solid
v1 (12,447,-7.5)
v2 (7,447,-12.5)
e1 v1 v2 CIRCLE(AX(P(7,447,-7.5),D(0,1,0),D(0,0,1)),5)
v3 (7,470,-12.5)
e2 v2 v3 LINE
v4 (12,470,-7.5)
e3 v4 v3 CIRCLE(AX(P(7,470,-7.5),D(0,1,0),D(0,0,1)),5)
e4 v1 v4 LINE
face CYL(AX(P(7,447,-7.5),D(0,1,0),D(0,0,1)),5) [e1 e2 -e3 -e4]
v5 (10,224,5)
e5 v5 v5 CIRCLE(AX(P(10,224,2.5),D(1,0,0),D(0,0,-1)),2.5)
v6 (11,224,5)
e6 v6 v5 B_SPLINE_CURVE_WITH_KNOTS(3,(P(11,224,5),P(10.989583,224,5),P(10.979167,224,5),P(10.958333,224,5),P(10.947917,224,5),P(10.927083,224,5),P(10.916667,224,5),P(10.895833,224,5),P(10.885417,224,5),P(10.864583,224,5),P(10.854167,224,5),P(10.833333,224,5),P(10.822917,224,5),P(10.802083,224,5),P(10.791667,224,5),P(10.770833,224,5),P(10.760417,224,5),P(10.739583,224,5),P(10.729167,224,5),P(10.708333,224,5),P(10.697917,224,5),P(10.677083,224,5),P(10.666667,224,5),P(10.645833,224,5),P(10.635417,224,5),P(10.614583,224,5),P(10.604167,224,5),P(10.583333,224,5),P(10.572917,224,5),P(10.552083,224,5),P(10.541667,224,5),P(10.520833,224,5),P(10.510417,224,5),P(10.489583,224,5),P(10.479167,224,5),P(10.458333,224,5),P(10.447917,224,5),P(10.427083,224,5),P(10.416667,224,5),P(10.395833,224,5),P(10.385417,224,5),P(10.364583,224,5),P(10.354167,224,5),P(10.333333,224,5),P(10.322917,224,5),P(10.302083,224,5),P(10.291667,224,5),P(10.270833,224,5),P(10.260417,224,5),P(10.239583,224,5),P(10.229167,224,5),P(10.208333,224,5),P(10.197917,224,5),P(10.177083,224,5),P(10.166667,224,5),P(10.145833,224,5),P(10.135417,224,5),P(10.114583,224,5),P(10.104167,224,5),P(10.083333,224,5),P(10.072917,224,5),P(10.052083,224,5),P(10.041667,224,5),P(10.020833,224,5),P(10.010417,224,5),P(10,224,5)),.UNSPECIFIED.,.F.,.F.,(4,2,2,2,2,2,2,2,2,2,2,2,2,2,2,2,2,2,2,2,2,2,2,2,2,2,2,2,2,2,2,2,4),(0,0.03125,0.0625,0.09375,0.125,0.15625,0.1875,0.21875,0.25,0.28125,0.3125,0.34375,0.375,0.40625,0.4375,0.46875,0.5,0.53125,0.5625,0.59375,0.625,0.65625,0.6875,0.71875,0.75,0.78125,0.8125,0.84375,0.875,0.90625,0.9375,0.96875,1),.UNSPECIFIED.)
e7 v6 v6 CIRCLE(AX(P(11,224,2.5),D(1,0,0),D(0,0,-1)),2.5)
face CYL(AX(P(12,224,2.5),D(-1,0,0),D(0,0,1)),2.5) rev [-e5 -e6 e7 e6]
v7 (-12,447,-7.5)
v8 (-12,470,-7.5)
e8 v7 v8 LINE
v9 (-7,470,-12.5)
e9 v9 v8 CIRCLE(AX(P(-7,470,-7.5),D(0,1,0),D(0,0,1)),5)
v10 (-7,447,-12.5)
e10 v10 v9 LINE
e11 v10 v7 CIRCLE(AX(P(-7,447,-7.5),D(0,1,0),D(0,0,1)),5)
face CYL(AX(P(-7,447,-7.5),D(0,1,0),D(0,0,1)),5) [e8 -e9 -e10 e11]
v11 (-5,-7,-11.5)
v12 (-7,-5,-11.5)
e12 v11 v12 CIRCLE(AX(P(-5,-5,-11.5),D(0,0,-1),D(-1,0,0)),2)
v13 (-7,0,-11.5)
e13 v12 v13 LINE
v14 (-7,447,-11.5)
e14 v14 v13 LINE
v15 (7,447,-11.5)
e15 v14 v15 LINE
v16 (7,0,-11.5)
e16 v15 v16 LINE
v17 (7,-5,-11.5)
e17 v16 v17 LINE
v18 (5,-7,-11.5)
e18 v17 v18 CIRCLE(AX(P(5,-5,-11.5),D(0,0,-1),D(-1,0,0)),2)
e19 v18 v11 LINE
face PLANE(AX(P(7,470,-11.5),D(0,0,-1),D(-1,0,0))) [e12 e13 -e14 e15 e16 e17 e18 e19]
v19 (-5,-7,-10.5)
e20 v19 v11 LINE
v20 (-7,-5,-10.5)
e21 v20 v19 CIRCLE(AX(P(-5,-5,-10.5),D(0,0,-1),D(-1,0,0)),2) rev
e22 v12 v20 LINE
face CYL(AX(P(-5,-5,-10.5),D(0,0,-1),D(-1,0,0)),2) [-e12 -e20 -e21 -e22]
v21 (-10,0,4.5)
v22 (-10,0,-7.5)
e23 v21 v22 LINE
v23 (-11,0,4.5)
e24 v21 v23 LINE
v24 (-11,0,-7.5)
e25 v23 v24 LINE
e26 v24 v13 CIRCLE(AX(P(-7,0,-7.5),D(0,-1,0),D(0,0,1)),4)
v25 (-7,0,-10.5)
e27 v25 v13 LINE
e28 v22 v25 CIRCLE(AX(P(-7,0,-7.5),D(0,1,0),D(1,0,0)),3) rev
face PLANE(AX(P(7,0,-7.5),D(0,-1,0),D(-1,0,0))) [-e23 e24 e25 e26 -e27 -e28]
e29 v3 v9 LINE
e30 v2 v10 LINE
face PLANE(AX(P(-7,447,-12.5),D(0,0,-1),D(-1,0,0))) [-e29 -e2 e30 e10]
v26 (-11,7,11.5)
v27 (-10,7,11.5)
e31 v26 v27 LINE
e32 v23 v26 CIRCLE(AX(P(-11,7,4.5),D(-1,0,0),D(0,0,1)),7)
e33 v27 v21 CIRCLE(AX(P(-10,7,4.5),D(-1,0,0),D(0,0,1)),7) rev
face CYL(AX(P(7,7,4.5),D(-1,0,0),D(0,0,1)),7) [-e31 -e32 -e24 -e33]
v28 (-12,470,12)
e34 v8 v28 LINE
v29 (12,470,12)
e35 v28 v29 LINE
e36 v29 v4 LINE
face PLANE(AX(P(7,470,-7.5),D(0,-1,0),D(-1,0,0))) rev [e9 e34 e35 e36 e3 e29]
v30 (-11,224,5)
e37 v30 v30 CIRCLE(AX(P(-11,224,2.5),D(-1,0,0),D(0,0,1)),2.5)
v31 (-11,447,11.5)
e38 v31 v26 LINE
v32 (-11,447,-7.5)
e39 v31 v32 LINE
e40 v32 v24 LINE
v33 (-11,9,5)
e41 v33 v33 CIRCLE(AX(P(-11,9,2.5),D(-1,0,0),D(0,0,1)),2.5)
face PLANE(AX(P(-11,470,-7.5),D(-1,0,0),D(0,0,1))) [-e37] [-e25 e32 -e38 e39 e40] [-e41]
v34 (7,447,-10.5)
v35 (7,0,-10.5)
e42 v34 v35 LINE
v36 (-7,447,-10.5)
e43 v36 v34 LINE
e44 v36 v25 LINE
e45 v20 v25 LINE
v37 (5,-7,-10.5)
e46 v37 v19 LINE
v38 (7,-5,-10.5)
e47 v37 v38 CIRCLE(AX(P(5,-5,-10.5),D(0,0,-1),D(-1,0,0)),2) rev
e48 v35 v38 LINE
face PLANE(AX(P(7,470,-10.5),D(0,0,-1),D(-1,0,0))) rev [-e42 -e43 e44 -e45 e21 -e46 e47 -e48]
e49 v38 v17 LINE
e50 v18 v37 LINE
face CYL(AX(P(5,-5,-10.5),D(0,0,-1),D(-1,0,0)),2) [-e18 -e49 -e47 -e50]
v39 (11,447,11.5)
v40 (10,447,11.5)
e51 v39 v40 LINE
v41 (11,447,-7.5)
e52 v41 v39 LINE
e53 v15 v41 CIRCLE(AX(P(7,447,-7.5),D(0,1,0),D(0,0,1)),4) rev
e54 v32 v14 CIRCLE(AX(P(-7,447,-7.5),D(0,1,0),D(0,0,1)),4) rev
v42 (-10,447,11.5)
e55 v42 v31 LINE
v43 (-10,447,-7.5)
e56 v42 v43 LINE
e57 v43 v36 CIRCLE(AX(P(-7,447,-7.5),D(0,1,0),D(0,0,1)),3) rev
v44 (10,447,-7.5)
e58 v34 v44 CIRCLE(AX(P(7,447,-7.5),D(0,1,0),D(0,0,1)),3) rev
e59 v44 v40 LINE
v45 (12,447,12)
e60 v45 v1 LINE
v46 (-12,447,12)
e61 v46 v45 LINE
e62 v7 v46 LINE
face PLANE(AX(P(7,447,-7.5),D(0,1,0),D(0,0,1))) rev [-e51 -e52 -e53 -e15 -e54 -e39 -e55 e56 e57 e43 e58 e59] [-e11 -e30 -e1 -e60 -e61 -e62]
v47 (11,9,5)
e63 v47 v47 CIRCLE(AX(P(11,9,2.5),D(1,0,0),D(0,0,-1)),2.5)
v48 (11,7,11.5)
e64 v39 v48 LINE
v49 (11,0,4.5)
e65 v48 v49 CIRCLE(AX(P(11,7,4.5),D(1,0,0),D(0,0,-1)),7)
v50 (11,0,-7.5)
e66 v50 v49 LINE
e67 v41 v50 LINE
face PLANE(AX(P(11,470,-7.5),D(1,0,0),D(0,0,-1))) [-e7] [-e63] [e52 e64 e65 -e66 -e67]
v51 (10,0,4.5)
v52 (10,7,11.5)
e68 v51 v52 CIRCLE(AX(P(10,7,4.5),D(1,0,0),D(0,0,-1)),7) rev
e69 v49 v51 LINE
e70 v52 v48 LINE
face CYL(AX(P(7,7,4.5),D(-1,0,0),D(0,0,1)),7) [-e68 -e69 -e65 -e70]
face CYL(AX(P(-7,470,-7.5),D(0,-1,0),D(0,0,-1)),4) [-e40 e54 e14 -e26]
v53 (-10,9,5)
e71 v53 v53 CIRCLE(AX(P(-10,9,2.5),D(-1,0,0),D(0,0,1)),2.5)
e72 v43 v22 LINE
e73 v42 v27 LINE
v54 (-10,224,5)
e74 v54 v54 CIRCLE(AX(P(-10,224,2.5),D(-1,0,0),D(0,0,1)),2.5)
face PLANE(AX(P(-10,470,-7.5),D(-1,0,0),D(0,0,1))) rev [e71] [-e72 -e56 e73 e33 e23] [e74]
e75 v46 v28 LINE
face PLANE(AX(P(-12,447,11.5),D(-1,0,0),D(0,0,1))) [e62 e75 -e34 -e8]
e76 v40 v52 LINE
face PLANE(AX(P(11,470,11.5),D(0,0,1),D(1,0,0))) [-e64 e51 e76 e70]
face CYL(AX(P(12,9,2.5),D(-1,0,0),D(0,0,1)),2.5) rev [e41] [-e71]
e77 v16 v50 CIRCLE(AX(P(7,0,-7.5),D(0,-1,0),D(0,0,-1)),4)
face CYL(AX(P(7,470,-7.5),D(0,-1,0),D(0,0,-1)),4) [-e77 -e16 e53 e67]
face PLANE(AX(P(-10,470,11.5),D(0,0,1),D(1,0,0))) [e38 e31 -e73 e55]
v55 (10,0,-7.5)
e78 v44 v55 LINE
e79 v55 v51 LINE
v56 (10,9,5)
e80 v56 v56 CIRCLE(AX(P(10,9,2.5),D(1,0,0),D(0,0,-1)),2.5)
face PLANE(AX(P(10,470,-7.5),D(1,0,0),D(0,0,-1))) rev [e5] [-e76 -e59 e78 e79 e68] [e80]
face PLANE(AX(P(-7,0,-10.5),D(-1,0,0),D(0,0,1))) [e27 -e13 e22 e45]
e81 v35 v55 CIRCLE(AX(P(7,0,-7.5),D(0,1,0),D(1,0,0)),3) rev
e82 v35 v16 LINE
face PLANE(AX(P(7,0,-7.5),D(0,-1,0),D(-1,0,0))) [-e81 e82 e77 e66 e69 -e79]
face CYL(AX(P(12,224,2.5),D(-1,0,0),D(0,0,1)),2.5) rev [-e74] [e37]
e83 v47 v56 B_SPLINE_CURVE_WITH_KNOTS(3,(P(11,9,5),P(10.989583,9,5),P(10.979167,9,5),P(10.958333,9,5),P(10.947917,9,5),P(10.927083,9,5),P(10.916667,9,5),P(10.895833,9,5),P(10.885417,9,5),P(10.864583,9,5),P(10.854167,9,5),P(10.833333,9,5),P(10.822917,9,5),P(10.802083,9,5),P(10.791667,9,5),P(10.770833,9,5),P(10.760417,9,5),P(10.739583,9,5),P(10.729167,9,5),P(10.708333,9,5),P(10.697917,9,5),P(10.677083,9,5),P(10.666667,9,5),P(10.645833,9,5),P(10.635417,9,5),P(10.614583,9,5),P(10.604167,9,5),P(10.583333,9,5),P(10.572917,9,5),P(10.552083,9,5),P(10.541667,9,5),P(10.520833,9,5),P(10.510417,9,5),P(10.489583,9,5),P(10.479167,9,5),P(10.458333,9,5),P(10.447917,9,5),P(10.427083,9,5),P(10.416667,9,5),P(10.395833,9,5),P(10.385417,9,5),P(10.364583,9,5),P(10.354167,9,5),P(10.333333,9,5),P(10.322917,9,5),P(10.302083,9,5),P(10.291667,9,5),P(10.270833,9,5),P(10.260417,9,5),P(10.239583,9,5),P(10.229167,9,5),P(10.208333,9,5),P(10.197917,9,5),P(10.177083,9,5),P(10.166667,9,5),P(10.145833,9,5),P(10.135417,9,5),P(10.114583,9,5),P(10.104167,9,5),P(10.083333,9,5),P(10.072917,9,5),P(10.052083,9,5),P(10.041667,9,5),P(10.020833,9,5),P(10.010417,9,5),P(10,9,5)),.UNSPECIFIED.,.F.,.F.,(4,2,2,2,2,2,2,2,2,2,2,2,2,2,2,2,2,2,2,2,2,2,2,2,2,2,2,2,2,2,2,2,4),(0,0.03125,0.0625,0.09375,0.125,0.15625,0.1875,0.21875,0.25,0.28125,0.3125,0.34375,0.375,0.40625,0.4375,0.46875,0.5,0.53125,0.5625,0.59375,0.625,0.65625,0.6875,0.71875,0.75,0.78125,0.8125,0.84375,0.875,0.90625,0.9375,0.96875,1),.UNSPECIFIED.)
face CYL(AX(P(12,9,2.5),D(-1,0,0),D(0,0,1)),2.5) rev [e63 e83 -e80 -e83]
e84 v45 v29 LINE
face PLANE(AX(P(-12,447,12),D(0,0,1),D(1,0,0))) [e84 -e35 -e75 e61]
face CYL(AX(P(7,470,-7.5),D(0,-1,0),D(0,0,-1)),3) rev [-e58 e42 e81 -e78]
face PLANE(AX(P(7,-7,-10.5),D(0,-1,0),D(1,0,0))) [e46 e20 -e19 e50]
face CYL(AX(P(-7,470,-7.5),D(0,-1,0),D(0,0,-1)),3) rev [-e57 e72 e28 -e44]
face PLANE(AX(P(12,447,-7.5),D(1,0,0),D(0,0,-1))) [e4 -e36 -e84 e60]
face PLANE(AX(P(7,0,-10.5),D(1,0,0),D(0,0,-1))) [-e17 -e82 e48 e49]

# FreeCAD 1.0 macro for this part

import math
import FreeCAD as App
import Part
import Sketcher

V = App.Vector


def edges_at(feature, points):
    """Names of the edges that pass closest to the given points."""
    edges = feature.Shape.Edges
    near = lambda p: min(range(len(edges)), key=lambda i: edges[i].distToShape(Part.Vertex(*p))[0])
    return sorted({f"Edge{near(p) + 1}" for p in points})

doc = App.newDocument("Part")
params = doc.addObject("Spreadsheet::Sheet", "Params")
for row, (alias, value) in enumerate([
    ("sketch1_radius", "4 mm"),
    ("sketch1_radius2", "3 mm"),
    ("sketch1_width", "14 mm"),
    ("sketch1_height", "19 mm"),
    ("pad1_length", "470 mm"),
    ("fillet_radius", "7 mm"),
    ("sketch2_radius", "5 mm"),
    ("sketch2_width", "24 mm"),
    ("sketch2_height", "19.5 mm"),
    ("pad2_length", "23 mm"),
    ("sketch3_width", "14 mm"),
    ("sketch3_height", "7 mm"),
    ("pad3_length", "1 mm"),
    ("fillet2_radius", "2 mm"),
    ("sketch4_diameter", "5 mm"),
], start=1):
    params.set(f"A{row}", alias)
    params.set(f"B{row}", "=" + value)
    params.setAlias(f"B{row}", alias)

body = doc.addObject("PartDesign::Body", "Body")

sketch1 = body.newObject("Sketcher::SketchObject", "Sketch")
sketch1.AttachmentSupport = (doc.getObject("XZ_Plane"), [""])
sketch1.MapMode = "FlatFace"
sketch1.addGeometry(Part.LineSegment(V(11, 11.5, 0), V(11, -7.5, 0)), False)
sketch1.addGeometry(Part.ArcOfCircle(Part.Circle(V(7, -7.5, 0), V(0, 0, 1), 4), math.radians(-90), math.radians(0)), False)
sketch1.addGeometry(Part.LineSegment(V(7, -11.5, 0), V(-7, -11.5, 0)), False)
sketch1.addGeometry(Part.ArcOfCircle(Part.Circle(V(-7, -7.5, 0), V(0, 0, 1), 4), math.radians(180), math.radians(270)), False)
sketch1.addGeometry(Part.LineSegment(V(-11, -7.5, 0), V(-11, 11.5, 0)), False)
sketch1.addGeometry(Part.LineSegment(V(-11, 11.5, 0), V(-10, 11.5, 0)), False)
sketch1.addGeometry(Part.LineSegment(V(-10, 11.5, 0), V(-10, -7.5, 0)), False)
sketch1.addGeometry(Part.ArcOfCircle(Part.Circle(V(-7, -7.5, 0), V(0, 0, 1), 3), math.radians(180), math.radians(270)), False)
sketch1.addGeometry(Part.LineSegment(V(-7, -10.5, 0), V(7, -10.5, 0)), False)
sketch1.addGeometry(Part.ArcOfCircle(Part.Circle(V(7, -7.5, 0), V(0, 0, 1), 3), math.radians(-90), math.radians(0)), False)
sketch1.addGeometry(Part.LineSegment(V(10, -7.5, 0), V(10, 11.5, 0)), False)
sketch1.addGeometry(Part.LineSegment(V(10, 11.5, 0), V(11, 11.5, 0)), False)
sketch1.addConstraint(Sketcher.Constraint("Tangent", 0, 2, 1, 2))
sketch1.addConstraint(Sketcher.Constraint("Tangent", 1, 1, 2, 1))
sketch1.addConstraint(Sketcher.Constraint("Tangent", 2, 2, 3, 2))
sketch1.addConstraint(Sketcher.Constraint("Tangent", 3, 1, 4, 1))
sketch1.addConstraint(Sketcher.Constraint("Coincident", 4, 2, 5, 1))
sketch1.addConstraint(Sketcher.Constraint("Coincident", 5, 2, 6, 1))
sketch1.addConstraint(Sketcher.Constraint("Tangent", 6, 2, 7, 1))
sketch1.addConstraint(Sketcher.Constraint("Tangent", 7, 2, 8, 1))
sketch1.addConstraint(Sketcher.Constraint("Tangent", 8, 2, 9, 1))
sketch1.addConstraint(Sketcher.Constraint("Tangent", 9, 2, 10, 1))
sketch1.addConstraint(Sketcher.Constraint("Coincident", 10, 2, 11, 1))
sketch1.addConstraint(Sketcher.Constraint("Coincident", 11, 2, 0, 1))
sketch1.addConstraint(Sketcher.Constraint("Vertical", 0))
sketch1.addConstraint(Sketcher.Constraint("Horizontal", 2))
sketch1.addConstraint(Sketcher.Constraint("Vertical", 4))
sketch1.addConstraint(Sketcher.Constraint("Horizontal", 5))
sketch1.addConstraint(Sketcher.Constraint("Vertical", 6))
sketch1.addConstraint(Sketcher.Constraint("Horizontal", 8))
sketch1.addConstraint(Sketcher.Constraint("Vertical", 10))
sketch1.addConstraint(Sketcher.Constraint("Horizontal", 11))
sketch1.addConstraint(Sketcher.Constraint("Coincident", 7, 3, 3, 3))
sketch1.addConstraint(Sketcher.Constraint("Coincident", 9, 3, 1, 3))
sketch1.addConstraint(Sketcher.Constraint("Equal", 1, 3))
sketch1.addConstraint(Sketcher.Constraint("Symmetric", 5, 2, 10, 2, -2))
sketch1.addConstraint(Sketcher.Constraint("Radius", 1, 4.0))
sketch1.addConstraint(Sketcher.Constraint("Radius", 7, 3.0))
sketch1.addConstraint(Sketcher.Constraint("DistanceX", 2, 2, 2, 1, 14.0))
sketch1.addConstraint(Sketcher.Constraint("DistanceY", 0, 2, 0, 1, 19.0))
sketch1.addConstraint(Sketcher.Constraint("DistanceY", 1, 3, -1, 1, 7.5))
sketch1.setExpression("Constraints[24]", "Params.sketch1_radius")
sketch1.setExpression("Constraints[25]", "Params.sketch1_radius2")
sketch1.setExpression("Constraints[26]", "Params.sketch1_width")
sketch1.setExpression("Constraints[27]", "Params.sketch1_height")
pad1 = body.newObject("PartDesign::Pad", "Pad")
pad1.Profile = sketch1
pad1.setExpression("Length", "Params.pad1_length")
pad1.Reversed = True
doc.recompute()

fillet = body.newObject("PartDesign::Fillet", "Fillet")
fillet.Base = (pad1, edges_at(pad1, [(-10.5, 0, 11.5), (10.5, 0, 11.5)]))
fillet.setExpression("Radius", "Params.fillet_radius")

sketch2 = body.newObject("Sketcher::SketchObject", "Sketch001")
sketch2.AttachmentSupport = (doc.getObject("XZ_Plane"), [""])
sketch2.MapMode = "FlatFace"
sketch2.AttachmentOffset = App.Placement(V(0, 0, -470), App.Rotation())
sketch2.addGeometry(Part.ArcOfCircle(Part.Circle(V(-7, -8, 0), V(0, 0, 1), 5), math.radians(180), math.radians(270)), False)
sketch2.addGeometry(Part.LineSegment(V(-12, -8, 0), V(-12, 12, 0)), False)
sketch2.addGeometry(Part.LineSegment(V(-12, 12, 0), V(12, 12, 0)), False)
sketch2.addGeometry(Part.LineSegment(V(12, 12, 0), V(12, -8, 0)), False)
sketch2.addGeometry(Part.ArcOfCircle(Part.Circle(V(7, -8, 0), V(0, 0, 1), 5), math.radians(-90), math.radians(0)), False)
sketch2.addGeometry(Part.LineSegment(V(7, -12, 0), V(-7, -12, 0)), False)
sketch2.addConstraint(Sketcher.Constraint("Tangent", 0, 1, 1, 1))
sketch2.addConstraint(Sketcher.Constraint("Coincident", 1, 2, 2, 1))
sketch2.addConstraint(Sketcher.Constraint("Coincident", 2, 2, 3, 1))
sketch2.addConstraint(Sketcher.Constraint("Tangent", 3, 2, 4, 2))
sketch2.addConstraint(Sketcher.Constraint("Tangent", 4, 1, 5, 1))
sketch2.addConstraint(Sketcher.Constraint("Tangent", 5, 2, 0, 2))
sketch2.addConstraint(Sketcher.Constraint("Vertical", 1))
sketch2.addConstraint(Sketcher.Constraint("Horizontal", 2))
sketch2.addConstraint(Sketcher.Constraint("Vertical", 3))
sketch2.addConstraint(Sketcher.Constraint("Horizontal", 5))
sketch2.addConstraint(Sketcher.Constraint("Equal", 0, 4))
sketch2.addConstraint(Sketcher.Constraint("Radius", 0, 5.0))
sketch2.addConstraint(Sketcher.Constraint("DistanceX", 2, 1, 2, 2, 24.0))
sketch2.addConstraint(Sketcher.Constraint("DistanceY", 1, 1, 1, 2, 19.5))
sketch2.addConstraint(Sketcher.Constraint("DistanceX", 0, 3, -1, 1, 7.0))
sketch2.addConstraint(Sketcher.Constraint("DistanceY", -1, 1, 1, 2, 12.0))
sketch2.setExpression("Constraints[11]", "Params.sketch2_radius")
sketch2.setExpression("Constraints[12]", "Params.sketch2_width")
sketch2.setExpression("Constraints[13]", "Params.sketch2_height")
pad2 = body.newObject("PartDesign::Pad", "Pad001")
pad2.Profile = sketch2
pad2.setExpression("Length", "Params.pad2_length")

sketch3 = body.newObject("Sketcher::SketchObject", "Sketch002")
sketch3.AttachmentSupport = (doc.getObject("XY_Plane"), [""])
sketch3.MapMode = "FlatFace"
sketch3.AttachmentOffset = App.Placement(V(0, 0, -11.5), App.Rotation())
sketch3.addGeometry(Part.LineSegment(V(7, 0, 0), V(7, -7, 0)), False)
sketch3.addGeometry(Part.LineSegment(V(7, -7, 0), V(-7, -7, 0)), False)
sketch3.addGeometry(Part.LineSegment(V(-7, -7, 0), V(-7, 0, 0)), False)
sketch3.addGeometry(Part.LineSegment(V(-7, 0, 0), V(7, 0, 0)), False)
sketch3.addConstraint(Sketcher.Constraint("Coincident", 0, 2, 1, 1))
sketch3.addConstraint(Sketcher.Constraint("Coincident", 1, 2, 2, 1))
sketch3.addConstraint(Sketcher.Constraint("Coincident", 2, 2, 3, 1))
sketch3.addConstraint(Sketcher.Constraint("Coincident", 3, 2, 0, 1))
sketch3.addConstraint(Sketcher.Constraint("Vertical", 0))
sketch3.addConstraint(Sketcher.Constraint("Horizontal", 1))
sketch3.addConstraint(Sketcher.Constraint("Vertical", 2))
sketch3.addConstraint(Sketcher.Constraint("Horizontal", 3))
sketch3.addConstraint(Sketcher.Constraint("Symmetric", 2, 2, 3, 2, -1, 1))
sketch3.addConstraint(Sketcher.Constraint("DistanceX", 1, 2, 1, 1, 14.0))
sketch3.addConstraint(Sketcher.Constraint("DistanceY", 0, 2, 0, 1, 7.0))
sketch3.setExpression("Constraints[9]", "Params.sketch3_width")
sketch3.setExpression("Constraints[10]", "Params.sketch3_height")
pad3 = body.newObject("PartDesign::Pad", "Pad002")
pad3.Profile = sketch3
pad3.setExpression("Length", "Params.pad3_length")
doc.recompute()

fillet2 = body.newObject("PartDesign::Fillet", "Fillet001")
fillet2.Base = (pad3, edges_at(pad3, [(7, -7, -11), (-7, -7, -11)]))
fillet2.setExpression("Radius", "Params.fillet2_radius")

sketch4 = body.newObject("Sketcher::SketchObject", "Sketch003")
sketch4.AttachmentSupport = (doc.getObject("YZ_Plane"), [""])
sketch4.MapMode = "FlatFace"
sketch4.AttachmentOffset = App.Placement(V(0, 0, -11), App.Rotation())
sketch4.addGeometry(Part.Circle(V(9, 2.5, 0), V(0, 0, 1), 2.5), False)
sketch4.addGeometry(Part.Circle(V(224, 2.5, 0), V(0, 0, 1), 2.5), False)
sketch4.addConstraint(Sketcher.Constraint("Equal", 0, 1))
sketch4.addConstraint(Sketcher.Constraint("Horizontal", 0, 3, 1, 3))
sketch4.addConstraint(Sketcher.Constraint("Diameter", 0, 5.0))
sketch4.addConstraint(Sketcher.Constraint("DistanceX", -1, 1, 0, 3, 9.0))
sketch4.addConstraint(Sketcher.Constraint("DistanceX", -1, 1, 1, 3, 224.0))
sketch4.addConstraint(Sketcher.Constraint("DistanceY", -1, 1, 0, 3, 2.5))
sketch4.setExpression("Constraints[2]", "Params.sketch4_diameter")
pocket1 = body.newObject("PartDesign::Pocket", "Pocket")
pocket1.Profile = sketch4
pocket1.Type = "ThroughAll"
pocket1.Reversed = True

doc.recompute()
